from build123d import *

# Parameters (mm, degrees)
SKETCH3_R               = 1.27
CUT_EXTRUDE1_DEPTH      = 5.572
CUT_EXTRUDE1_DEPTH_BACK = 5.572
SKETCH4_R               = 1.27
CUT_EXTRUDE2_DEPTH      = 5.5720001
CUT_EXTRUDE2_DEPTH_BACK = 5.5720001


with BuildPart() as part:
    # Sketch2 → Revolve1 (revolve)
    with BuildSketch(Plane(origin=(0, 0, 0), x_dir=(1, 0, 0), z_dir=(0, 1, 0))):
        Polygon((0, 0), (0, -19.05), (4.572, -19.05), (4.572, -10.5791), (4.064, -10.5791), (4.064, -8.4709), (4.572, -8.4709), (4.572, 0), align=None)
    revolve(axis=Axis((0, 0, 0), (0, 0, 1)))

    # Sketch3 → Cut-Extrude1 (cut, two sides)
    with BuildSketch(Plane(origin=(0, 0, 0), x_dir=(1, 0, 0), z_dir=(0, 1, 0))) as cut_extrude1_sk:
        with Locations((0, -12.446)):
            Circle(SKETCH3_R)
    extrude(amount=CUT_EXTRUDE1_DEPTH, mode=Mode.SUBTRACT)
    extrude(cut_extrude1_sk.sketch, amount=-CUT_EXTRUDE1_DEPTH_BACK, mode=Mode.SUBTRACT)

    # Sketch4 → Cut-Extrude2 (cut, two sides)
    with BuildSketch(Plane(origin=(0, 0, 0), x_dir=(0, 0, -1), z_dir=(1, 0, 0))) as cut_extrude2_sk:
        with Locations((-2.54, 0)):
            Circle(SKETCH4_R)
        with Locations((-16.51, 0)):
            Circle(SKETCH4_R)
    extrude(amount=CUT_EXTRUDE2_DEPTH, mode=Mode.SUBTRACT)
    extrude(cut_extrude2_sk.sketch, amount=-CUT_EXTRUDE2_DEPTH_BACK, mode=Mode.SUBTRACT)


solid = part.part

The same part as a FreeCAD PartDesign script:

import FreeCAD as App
import Part
import Sketcher
from FreeCAD import Vector
Q = App.Units.Quantity

doc = App.newDocument("Part")
body = doc.addObject("PartDesign::Body", "Body")

sketch1 = body.newObject("Sketcher::SketchObject", "Sketch")
sketch1.AttachmentSupport = (doc.getObject("XZ_Plane"), [""])
sketch1.MapMode = "FlatFace"
sketch1.addGeometry([
    Part.LineSegment(Vector(0, 0, 0), Vector(0, 19.05, 0)),
    Part.LineSegment(Vector(0, 19.05, 0), Vector(4.572, 19.05, 0)),
    Part.LineSegment(Vector(4.572, 19.05, 0), Vector(4.572, 10.5791, 0)),
    Part.LineSegment(Vector(4.572, 10.5791, 0), Vector(4.064, 10.5791, 0)),
    Part.LineSegment(Vector(4.064, 10.5791, 0), Vector(4.064, 8.4709, 0)),
    Part.LineSegment(Vector(4.064, 8.4709, 0), Vector(4.572, 8.4709, 0)),
    Part.LineSegment(Vector(4.572, 8.4709, 0), Vector(4.572, 0, 0)),
    Part.LineSegment(Vector(4.572, 0, 0), Vector(0, 0, 0)),
], False)
sketch1.addConstraint([
    Sketcher.Constraint("Coincident", 0, 2, 1, 1),
    Sketcher.Constraint("Coincident", 1, 2, 2, 1),
    Sketcher.Constraint("Coincident", 2, 2, 3, 1),
    Sketcher.Constraint("Coincident", 3, 2, 4, 1),
    Sketcher.Constraint("Coincident", 4, 2, 5, 1),
    Sketcher.Constraint("Coincident", 5, 2, 6, 1),
    Sketcher.Constraint("Coincident", 6, 2, 7, 1),
    Sketcher.Constraint("Coincident", 7, 2, 0, 1),
    Sketcher.Constraint("Vertical", 0),
    Sketcher.Constraint("Horizontal", 1),
    Sketcher.Constraint("Vertical", 2),
    Sketcher.Constraint("Horizontal", 3),
    Sketcher.Constraint("Vertical", 4),
    Sketcher.Constraint("Horizontal", 5),
    Sketcher.Constraint("Vertical", 6),
    Sketcher.Constraint("Horizontal", 7),
    Sketcher.Constraint("Coincident", 7, 2, -1, 1),
    Sketcher.Constraint("Vertical", 2, 2, 5, 2),
    Sketcher.Constraint("Equal", 2, 6),
    Sketcher.Constraint("DistanceX", 1, 1, 1, 2, Q("0.18 in")),
    Sketcher.Constraint("DistanceX", 3, 2, 3, 1, Q("0.02 in")),
    Sketcher.Constraint("DistanceY", 0, 1, 0, 2, Q("0.75 in")),
    Sketcher.Constraint("DistanceY", 4, 2, 4, 1, Q("0.083 in")),
])
revolution = body.newObject("PartDesign::Revolution", "Revolution")
revolution.Profile = sketch1
revolution.ReferenceAxis = (sketch1, ["V_Axis"])
revolution.Angle = 360

sketch2 = body.newObject("Sketcher::SketchObject", "Sketch001")
sketch2.AttachmentSupport = (doc.getObject("XZ_Plane"), [""])
sketch2.MapMode = "FlatFace"
sketch2.addGeometry(Part.Circle(Vector(0, 12.446, 0), Vector(0, 0, 1), 1.27), False)
sketch2.addConstraint([
    Sketcher.Constraint("PointOnObject", 0, 3, -2),
    Sketcher.Constraint("Diameter", 0, Q("0.1 in")),
    Sketcher.Constraint("DistanceY", -1, 1, 0, 3, Q("0.49 in")),
])
pocket1 = body.newObject("PartDesign::Pocket", "Pocket")
pocket1.Profile = sketch2
pocket1.Type = "ThroughAll"
pocket1.Midplane = True

sketch3 = body.newObject("Sketcher::SketchObject", "Sketch002")
sketch3.AttachmentSupport = (doc.getObject("YZ_Plane"), [""])
sketch3.MapMode = "FlatFace"
sketch3.addGeometry([
    Part.Circle(Vector(0, 2.54, 0), Vector(0, 0, 1), 1.27),
    Part.Circle(Vector(0, 16.51, 0), Vector(0, 0, 1), 1.27),
], False)
sketch3.addConstraint([
    Sketcher.Constraint("Equal", 0, 1),
    Sketcher.Constraint("PointOnObject", 0, 3, -2),
    Sketcher.Constraint("PointOnObject", 1, 3, -2),
    Sketcher.Constraint("Diameter", 0, Q("0.1 in")),
    Sketcher.Constraint("DistanceY", -1, 1, 0, 3, Q("0.1 in")),
    Sketcher.Constraint("DistanceY", -1, 1, 1, 3, Q("0.65 in")),
])
pocket2 = body.newObject("PartDesign::Pocket", "Pocket001")
pocket2.Profile = sketch3
pocket2.Type = "ThroughAll"
pocket2.Midplane = True

doc.recompute()
